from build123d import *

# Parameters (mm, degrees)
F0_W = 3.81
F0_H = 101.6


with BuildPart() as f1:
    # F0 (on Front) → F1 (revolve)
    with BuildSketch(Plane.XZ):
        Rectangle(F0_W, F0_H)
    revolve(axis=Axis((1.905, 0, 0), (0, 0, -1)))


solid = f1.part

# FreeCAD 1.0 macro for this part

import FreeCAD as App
import Part
import Sketcher
from FreeCAD import Vector
Q = App.Units.Quantity

doc = App.newDocument("Part")
body = doc.addObject("PartDesign::Body", "Body")

sketch1 = body.newObject("Sketcher::SketchObject", "Sketch")
sketch1.AttachmentSupport = (doc.getObject("XZ_Plane"), [""])
sketch1.MapMode = "FlatFace"
sketch1.addGeometry(Part.LineSegment(Vector(-1.9, 50.8, 0), Vector(-1.9, -50.8, 0)), False)
sketch1.addGeometry(Part.LineSegment(Vector(-1.9, -50.8, 0), Vector(1.9, -50.8, 0)), False)
sketch1.addGeometry(Part.LineSegment(Vector(1.9, -50.8, 0), Vector(1.9, 50.8, 0)), False)
sketch1.addGeometry(Part.LineSegment(Vector(1.9, 50.8, 0), Vector(-1.9, 50.8, 0)), False)
sketch1.addGeometry(Part.LineSegment(Vector(1.9, 50.8, 0), Vector(1.9, -50.8, 0)), True)
sketch1.addConstraint(Sketcher.Constraint("Coincident", 0, 2, 1, 1))
sketch1.addConstraint(Sketcher.Constraint("Coincident", 1, 2, 2, 1))
sketch1.addConstraint(Sketcher.Constraint("Coincident", 2, 2, 3, 1))
sketch1.addConstraint(Sketcher.Constraint("Coincident", 3, 2, 0, 1))
sketch1.addConstraint(Sketcher.Constraint("Vertical", 0))
sketch1.addConstraint(Sketcher.Constraint("Horizontal", 1))
sketch1.addConstraint(Sketcher.Constraint("Vertical", 2))
sketch1.addConstraint(Sketcher.Constraint("Horizontal", 3))
sketch1.addConstraint(Sketcher.Constraint("Vertical", 4))
sketch1.addConstraint(Sketcher.Constraint("Coincident", 4, 1, 2, 2))
sketch1.addConstraint(Sketcher.Constraint("Symmetric", 0, 2, 2, 2, -1, 1))
sketch1.addConstraint(Sketcher.Constraint("Horizontal", 0, 2, 4, 2))
sketch1.addConstraint(Sketcher.Constraint("DistanceY", 0, 2, 0, 1, Q("4 in")))
sketch1.addConstraint(Sketcher.Constraint("DistanceX", 1, 1, 1, 2, Q("0.15 in")))
revolution = body.newObject("PartDesign::Revolution", "Revolution")
revolution.Profile = sketch1
revolution.ReferenceAxis = (sketch1, ["Axis0"])
revolution.Angle = 360

doc.recompute()
